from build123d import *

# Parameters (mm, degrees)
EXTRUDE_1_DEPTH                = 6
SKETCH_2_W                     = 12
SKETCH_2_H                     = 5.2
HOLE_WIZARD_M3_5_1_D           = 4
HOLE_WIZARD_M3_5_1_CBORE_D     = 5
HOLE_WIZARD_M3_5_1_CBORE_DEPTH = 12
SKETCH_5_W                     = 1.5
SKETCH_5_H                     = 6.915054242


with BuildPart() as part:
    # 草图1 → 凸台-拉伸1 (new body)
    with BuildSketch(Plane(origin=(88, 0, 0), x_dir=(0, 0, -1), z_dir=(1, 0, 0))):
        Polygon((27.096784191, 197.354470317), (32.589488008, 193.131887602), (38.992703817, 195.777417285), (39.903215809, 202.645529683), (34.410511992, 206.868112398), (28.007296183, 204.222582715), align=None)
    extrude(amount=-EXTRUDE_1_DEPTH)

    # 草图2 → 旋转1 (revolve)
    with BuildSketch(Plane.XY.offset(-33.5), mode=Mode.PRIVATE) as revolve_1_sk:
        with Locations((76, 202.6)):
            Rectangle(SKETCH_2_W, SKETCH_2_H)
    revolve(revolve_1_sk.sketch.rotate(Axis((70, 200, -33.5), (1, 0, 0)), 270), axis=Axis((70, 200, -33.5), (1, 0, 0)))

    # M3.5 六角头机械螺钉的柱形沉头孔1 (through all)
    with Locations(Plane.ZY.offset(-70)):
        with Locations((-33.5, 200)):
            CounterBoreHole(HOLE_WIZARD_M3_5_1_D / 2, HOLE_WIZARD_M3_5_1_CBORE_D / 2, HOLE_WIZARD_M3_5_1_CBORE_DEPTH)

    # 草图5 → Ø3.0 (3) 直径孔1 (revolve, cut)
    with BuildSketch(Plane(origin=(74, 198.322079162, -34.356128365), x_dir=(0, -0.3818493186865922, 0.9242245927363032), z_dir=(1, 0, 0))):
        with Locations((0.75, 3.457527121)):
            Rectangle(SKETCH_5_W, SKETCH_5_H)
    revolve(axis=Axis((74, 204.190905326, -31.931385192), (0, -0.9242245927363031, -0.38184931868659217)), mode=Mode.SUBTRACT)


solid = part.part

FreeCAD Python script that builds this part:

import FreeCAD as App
import Part
import Sketcher


def add_polygon(sketch, points):
    """Adds a closed chain of lines whose ends are joined by coincident constraints."""
    first, n = sketch.GeometryCount, len(points)
    for a, b in zip(points, points[1:] + points[:1]):
        sketch.addGeometry(Part.LineSegment(App.Vector(*a, 0), App.Vector(*b, 0)), False)
    for i in range(n):
        sketch.addConstraint(Sketcher.Constraint("Coincident", first + i, 2, first + (i + 1) % n, 1))

doc = App.newDocument("Part")
body = doc.addObject("PartDesign::Body", "Body")

# Sketch on YZ plane
sketch1 = body.newObject("Sketcher::SketchObject", "Sketch")
sketch1.AttachmentSupport = (doc.getObject("YZ_Plane"), [""])
sketch1.MapMode = "FlatFace"
sketch1.AttachmentOffset = App.Placement(App.Vector(0, 0, 88), App.Rotation())
add_polygon(sketch1, [(197, -27), (193, -33), (196, -39), (203, -40), (207, -34), (204, -28)])  # lines 0-5
sketch1.addConstraint(Sketcher.Constraint("Parallel", 0, 3))
sketch1.addConstraint(Sketcher.Constraint("Parallel", 1, 4))
sketch1.addConstraint(Sketcher.Constraint("Parallel", 2, 5))
sketch1.addConstraint(Sketcher.Constraint("Equal", 0, 1))
sketch1.addConstraint(Sketcher.Constraint("Equal", 1, 2))
sketch1.addConstraint(Sketcher.Constraint("Equal", 2, 3))
sketch1.addConstraint(Sketcher.Constraint("DistanceY", 0, 2, -1, 1, 32.589488))
sketch1.addConstraint(Sketcher.Constraint("DistanceX", -1, 1, 2, 2, 202.64553))
sketch1.addConstraint(Sketcher.Constraint("DistanceY", 3, 2, -1, 1, 34.410512))
sketch1.addConstraint(Sketcher.Constraint("DistanceX", -1, 1, 5, 2, 197.35447))
sketch1.addConstraint(Sketcher.Constraint("DistanceX", 0, 2, 1, 2, 2.64553))
sketch1.addConstraint(Sketcher.Constraint("DistanceY", 2, 2, 1, 2, 0.910512))
pad1 = body.newObject("PartDesign::Pad", "Pad")
pad1.Profile = sketch1
pad1.Length = 6
pad1.Reversed = True

# Sketch on XY plane
sketch2 = body.newObject("Sketcher::SketchObject", "Sketch001")
sketch2.AttachmentSupport = (doc.getObject("XY_Plane"), [""])
sketch2.MapMode = "FlatFace"
sketch2.AttachmentOffset = App.Placement(App.Vector(0, 0, -33.5), App.Rotation())
add_polygon(sketch2, [(70, 205), (70, 200), (82, 200), (82, 205)])  # lines 0-3
sketch2.addGeometry(Part.LineSegment(App.Vector(70, 200, 0), App.Vector(82, 200, 0)), True)  # axis
sketch2.addConstraint(Sketcher.Constraint("Vertical", 0))
sketch2.addConstraint(Sketcher.Constraint("Horizontal", 1))
sketch2.addConstraint(Sketcher.Constraint("Vertical", 2))
sketch2.addConstraint(Sketcher.Constraint("Horizontal", 3))
sketch2.addConstraint(Sketcher.Constraint("Horizontal", 4))
sketch2.addConstraint(Sketcher.Constraint("Coincident", 4, 1, 0, 2))
sketch2.addConstraint(Sketcher.Constraint("Vertical", 2, 2, 4, 2))
sketch2.addConstraint(Sketcher.Constraint("DistanceX", 1, 1, 1, 2, 12.0))
sketch2.addConstraint(Sketcher.Constraint("DistanceY", 0, 2, 0, 1, 5.2))
sketch2.addConstraint(Sketcher.Constraint("DistanceX", -1, 1, 0, 2, 70.0))
sketch2.addConstraint(Sketcher.Constraint("DistanceY", -1, 1, 0, 2, 200.0))
revolution = body.newObject("PartDesign::Revolution", "Revolution")
revolution.Profile = sketch2
revolution.ReferenceAxis = (sketch2, ["Axis0"])
revolution.Angle = 360

# Sketch on YZ plane
sketch3 = body.newObject("Sketcher::SketchObject", "Sketch002")
sketch3.AttachmentSupport = (doc.getObject("YZ_Plane"), [""])
sketch3.MapMode = "FlatFace"
sketch3.AttachmentOffset = App.Placement(App.Vector(0, 0, 70), App.Rotation())
sketch3.addGeometry(Part.Circle(App.Vector(200, -33.5, 0), App.Vector(0, 0, 1), 2), False)
sketch3.addConstraint(Sketcher.Constraint("Diameter", 0, 4.0))
sketch3.addConstraint(Sketcher.Constraint("DistanceX", -1, 1, 0, 3, 200.0))
sketch3.addConstraint(Sketcher.Constraint("DistanceY", 0, 3, -1, 1, 33.5))
doc.recompute()
hole = body.newObject("PartDesign::Hole", "Hole")
hole.Profile = sketch3
hole.ThreadType = "None"
hole.Diameter = 4
hole.DepthType = "ThroughAll"
hole.HoleCutType = "Counterbore"
hole.HoleCutDiameter = 5
hole.HoleCutDepth = 12
hole.Reversed = True

# Sketch on YZ plane
sketch4 = body.newObject("Sketcher::SketchObject", "Sketch003")
sketch4.AttachmentSupport = (doc.getObject("YZ_Plane"), [""])
sketch4.MapMode = "FlatFace"
sketch4.AttachmentOffset = App.Placement(App.Vector(0, 0, 74), App.Rotation())
add_polygon(sketch4, [(191.9, -37), (198.3, -34.4), (197.7, -33), (191.4, -35.6)])  # lines 0-3
sketch4.addGeometry(Part.LineSegment(App.Vector(198.3, -34.4, 0), App.Vector(191.9, -37, 0)), True)  # axis
sketch4.addConstraint(Sketcher.Constraint("Coincident", 4, 1, 0, 2))
sketch4.addConstraint(Sketcher.Constraint("Coincident", 4, 2, 3, 2))
sketch4.addConstraint(Sketcher.Constraint("Perpendicular", 0, 1))
sketch4.addConstraint(Sketcher.Constraint("Perpendicular", 1, 2))
sketch4.addConstraint(Sketcher.Constraint("Perpendicular", 2, 3))
sketch4.addConstraint(Sketcher.Constraint("Distance", 1, 1.5))
sketch4.addConstraint(Sketcher.Constraint("DistanceY", 2, 2, -1, 1, 35.6103))
sketch4.addConstraint(Sketcher.Constraint("DistanceX", -1, 1, 0, 2, 198.322079))
sketch4.addConstraint(Sketcher.Constraint("DistanceY", 0, 2, -1, 1, 34.356128))
sketch4.addConstraint(Sketcher.Constraint("DistanceY", 1, 2, -1, 1, 32.969791))
groove = body.newObject("PartDesign::Groove", "Groove")
groove.Profile = sketch4
groove.ReferenceAxis = (sketch4, ["Axis0"])
groove.Angle = 360

doc.recompute()
